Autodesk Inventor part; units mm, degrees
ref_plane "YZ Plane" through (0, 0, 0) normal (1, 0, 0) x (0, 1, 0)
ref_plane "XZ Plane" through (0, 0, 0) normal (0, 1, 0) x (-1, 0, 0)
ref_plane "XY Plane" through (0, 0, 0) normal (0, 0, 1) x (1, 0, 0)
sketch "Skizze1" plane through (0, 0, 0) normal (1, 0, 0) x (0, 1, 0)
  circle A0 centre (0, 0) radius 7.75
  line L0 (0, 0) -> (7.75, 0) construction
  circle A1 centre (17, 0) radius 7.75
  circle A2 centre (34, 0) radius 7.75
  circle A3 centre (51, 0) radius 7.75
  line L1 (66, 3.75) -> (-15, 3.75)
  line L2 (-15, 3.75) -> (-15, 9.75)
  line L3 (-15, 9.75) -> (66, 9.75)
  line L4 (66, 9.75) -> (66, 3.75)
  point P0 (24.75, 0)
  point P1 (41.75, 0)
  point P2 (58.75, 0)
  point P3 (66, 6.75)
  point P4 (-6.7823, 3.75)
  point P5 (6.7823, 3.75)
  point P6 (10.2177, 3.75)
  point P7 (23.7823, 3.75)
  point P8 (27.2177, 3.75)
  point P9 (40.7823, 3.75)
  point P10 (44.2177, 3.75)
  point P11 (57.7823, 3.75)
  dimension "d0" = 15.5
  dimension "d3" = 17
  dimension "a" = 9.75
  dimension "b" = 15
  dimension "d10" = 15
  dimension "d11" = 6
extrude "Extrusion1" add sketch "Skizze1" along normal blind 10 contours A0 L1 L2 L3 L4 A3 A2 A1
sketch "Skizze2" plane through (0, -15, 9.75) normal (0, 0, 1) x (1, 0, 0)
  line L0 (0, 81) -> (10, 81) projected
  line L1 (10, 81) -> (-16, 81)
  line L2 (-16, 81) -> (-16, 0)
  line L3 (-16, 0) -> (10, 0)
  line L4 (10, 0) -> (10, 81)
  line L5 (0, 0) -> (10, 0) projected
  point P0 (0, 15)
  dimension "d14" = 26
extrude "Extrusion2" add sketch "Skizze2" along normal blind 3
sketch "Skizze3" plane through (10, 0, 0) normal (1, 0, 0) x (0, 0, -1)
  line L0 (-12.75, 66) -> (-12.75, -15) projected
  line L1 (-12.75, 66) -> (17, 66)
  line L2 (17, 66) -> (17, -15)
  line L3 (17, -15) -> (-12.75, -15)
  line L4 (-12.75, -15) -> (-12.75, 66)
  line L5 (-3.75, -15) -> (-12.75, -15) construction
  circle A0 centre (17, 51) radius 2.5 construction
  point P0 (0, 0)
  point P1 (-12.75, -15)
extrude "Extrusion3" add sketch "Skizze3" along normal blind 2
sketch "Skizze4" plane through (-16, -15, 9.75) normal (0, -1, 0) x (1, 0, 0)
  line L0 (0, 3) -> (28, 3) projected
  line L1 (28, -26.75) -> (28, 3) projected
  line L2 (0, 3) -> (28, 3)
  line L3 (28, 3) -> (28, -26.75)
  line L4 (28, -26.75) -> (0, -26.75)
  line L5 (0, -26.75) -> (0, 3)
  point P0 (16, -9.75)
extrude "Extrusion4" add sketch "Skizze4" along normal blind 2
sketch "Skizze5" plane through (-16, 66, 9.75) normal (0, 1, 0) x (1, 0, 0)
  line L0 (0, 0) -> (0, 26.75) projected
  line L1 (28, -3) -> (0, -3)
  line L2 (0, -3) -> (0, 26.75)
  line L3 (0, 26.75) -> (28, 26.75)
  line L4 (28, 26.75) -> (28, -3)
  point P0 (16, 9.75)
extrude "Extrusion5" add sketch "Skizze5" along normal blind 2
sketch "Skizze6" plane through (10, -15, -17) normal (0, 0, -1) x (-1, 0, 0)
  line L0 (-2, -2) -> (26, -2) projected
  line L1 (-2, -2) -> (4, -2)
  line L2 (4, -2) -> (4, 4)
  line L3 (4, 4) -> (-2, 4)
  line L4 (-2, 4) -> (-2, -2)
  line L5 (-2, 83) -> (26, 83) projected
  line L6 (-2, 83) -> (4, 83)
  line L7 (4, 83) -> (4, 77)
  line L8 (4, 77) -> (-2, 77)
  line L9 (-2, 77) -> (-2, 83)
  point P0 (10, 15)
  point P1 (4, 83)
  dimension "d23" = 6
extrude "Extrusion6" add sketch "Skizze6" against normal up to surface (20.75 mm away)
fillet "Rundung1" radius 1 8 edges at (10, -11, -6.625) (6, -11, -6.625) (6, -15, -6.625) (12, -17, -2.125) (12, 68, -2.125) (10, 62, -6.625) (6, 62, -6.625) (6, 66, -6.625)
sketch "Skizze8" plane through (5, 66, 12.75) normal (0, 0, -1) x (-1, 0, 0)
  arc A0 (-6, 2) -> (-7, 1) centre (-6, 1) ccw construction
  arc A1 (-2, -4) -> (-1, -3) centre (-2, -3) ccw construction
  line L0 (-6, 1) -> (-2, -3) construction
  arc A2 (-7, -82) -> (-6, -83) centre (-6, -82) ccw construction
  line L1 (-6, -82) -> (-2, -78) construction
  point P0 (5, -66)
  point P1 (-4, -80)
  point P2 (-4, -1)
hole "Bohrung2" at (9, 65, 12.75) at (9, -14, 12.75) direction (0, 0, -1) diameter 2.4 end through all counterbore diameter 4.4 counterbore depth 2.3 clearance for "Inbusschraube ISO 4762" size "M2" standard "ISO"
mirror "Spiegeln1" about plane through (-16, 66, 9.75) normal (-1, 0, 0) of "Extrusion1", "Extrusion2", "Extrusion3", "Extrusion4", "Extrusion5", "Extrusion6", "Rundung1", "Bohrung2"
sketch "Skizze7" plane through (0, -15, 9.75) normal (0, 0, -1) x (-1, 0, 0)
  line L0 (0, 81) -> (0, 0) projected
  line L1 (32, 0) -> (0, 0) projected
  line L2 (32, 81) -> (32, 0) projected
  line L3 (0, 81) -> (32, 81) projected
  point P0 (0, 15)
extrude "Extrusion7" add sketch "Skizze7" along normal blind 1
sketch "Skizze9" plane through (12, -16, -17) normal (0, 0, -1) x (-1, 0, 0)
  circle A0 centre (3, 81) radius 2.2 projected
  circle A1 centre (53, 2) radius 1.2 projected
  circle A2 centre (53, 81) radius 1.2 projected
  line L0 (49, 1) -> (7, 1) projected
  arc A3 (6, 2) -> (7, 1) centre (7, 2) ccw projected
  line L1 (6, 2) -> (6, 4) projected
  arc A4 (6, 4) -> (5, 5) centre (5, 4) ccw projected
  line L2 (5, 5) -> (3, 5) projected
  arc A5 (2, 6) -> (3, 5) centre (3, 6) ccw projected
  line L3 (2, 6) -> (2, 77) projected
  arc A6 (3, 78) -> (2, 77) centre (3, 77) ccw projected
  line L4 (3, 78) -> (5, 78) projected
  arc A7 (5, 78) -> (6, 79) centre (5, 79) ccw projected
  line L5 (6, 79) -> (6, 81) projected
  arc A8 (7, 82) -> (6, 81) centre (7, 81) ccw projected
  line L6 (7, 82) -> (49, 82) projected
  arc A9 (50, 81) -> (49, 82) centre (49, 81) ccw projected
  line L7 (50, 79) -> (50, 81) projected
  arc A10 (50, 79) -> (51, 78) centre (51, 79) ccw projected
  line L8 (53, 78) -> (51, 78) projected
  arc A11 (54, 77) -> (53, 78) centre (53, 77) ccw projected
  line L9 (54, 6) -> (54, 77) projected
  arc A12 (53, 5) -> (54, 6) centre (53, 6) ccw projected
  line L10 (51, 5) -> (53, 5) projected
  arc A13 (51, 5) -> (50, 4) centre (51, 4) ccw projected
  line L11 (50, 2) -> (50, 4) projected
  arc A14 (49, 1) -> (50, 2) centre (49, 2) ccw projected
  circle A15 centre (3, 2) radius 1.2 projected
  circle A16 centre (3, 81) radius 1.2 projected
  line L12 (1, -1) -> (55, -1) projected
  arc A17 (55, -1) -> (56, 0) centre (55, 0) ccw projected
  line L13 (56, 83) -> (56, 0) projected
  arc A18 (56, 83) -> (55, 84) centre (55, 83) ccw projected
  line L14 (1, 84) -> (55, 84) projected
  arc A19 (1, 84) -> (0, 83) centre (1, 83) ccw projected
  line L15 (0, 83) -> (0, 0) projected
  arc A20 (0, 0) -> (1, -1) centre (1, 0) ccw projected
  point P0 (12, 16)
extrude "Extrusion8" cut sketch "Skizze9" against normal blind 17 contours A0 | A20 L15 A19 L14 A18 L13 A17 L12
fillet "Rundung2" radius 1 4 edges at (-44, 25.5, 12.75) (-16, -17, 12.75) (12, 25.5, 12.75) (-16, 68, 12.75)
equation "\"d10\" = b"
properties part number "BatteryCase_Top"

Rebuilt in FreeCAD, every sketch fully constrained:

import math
import FreeCAD as App
import Part
import Sketcher
from FreeCAD import Vector
Q = App.Units.Quantity


def edges_at(feature, points):
    """Names of the edges that pass closest to the given points."""
    edges = feature.Shape.Edges
    near = lambda p: min(range(len(edges)), key=lambda i: edges[i].distToShape(Part.Vertex(*p))[0])
    return sorted({f"Edge{near(p) + 1}" for p in points})

doc = App.newDocument("Part")
body = doc.addObject("PartDesign::Body", "Body")

# Sketch on YZ plane
sketch1 = doc.addObject("Sketcher::SketchObject", "Sketch")
body.addObject(sketch1)
sketch1.AttachmentSupport = (doc.YZ_Plane, [""])
sketch1.MapMode = "FlatFace"
sketch1.addGeometry(Part.ArcOfCircle(Part.Circle(Vector(0, 0, 0), Vector(0, 0, 1), 7.8), math.radians(29), math.radians(151)), False)
sketch1.addGeometry(Part.LineSegment(Vector(6.8, 3.8, 0), Vector(10.2, 3.8, 0)), False)
sketch1.addGeometry(Part.ArcOfCircle(Part.Circle(Vector(17, 0, 0), Vector(0, 0, 1), 7.8), math.radians(29), math.radians(151)), False)
sketch1.addGeometry(Part.LineSegment(Vector(23.8, 3.8, 0), Vector(27.2, 3.8, 0)), False)
sketch1.addGeometry(Part.ArcOfCircle(Part.Circle(Vector(34, 0, 0), Vector(0, 0, 1), 7.8), math.radians(29), math.radians(151)), False)
sketch1.addGeometry(Part.LineSegment(Vector(40.8, 3.8, 0), Vector(44.2, 3.8, 0)), False)
sketch1.addGeometry(Part.ArcOfCircle(Part.Circle(Vector(51, 0, 0), Vector(0, 0, 1), 7.8), math.radians(29), math.radians(151)), False)
sketch1.addGeometry(Part.LineSegment(Vector(57.8, 3.8, 0), Vector(66, 3.8, 0)), False)
sketch1.addGeometry(Part.LineSegment(Vector(66, 3.8, 0), Vector(66, 9.8, 0)), False)
sketch1.addGeometry(Part.LineSegment(Vector(66, 9.8, 0), Vector(-15, 9.8, 0)), False)
sketch1.addGeometry(Part.LineSegment(Vector(-15, 9.8, 0), Vector(-15, 3.8, 0)), False)
sketch1.addGeometry(Part.LineSegment(Vector(-15, 3.8, 0), Vector(-6.8, 3.8, 0)), False)
sketch1.addConstraint(Sketcher.Constraint("Coincident", 0, 1, 1, 1))
sketch1.addConstraint(Sketcher.Constraint("Coincident", 1, 2, 2, 2))
sketch1.addConstraint(Sketcher.Constraint("Coincident", 2, 1, 3, 1))
sketch1.addConstraint(Sketcher.Constraint("Coincident", 3, 2, 4, 2))
sketch1.addConstraint(Sketcher.Constraint("Coincident", 4, 1, 5, 1))
sketch1.addConstraint(Sketcher.Constraint("Coincident", 5, 2, 6, 2))
sketch1.addConstraint(Sketcher.Constraint("Coincident", 6, 1, 7, 1))
sketch1.addConstraint(Sketcher.Constraint("Coincident", 7, 2, 8, 1))
sketch1.addConstraint(Sketcher.Constraint("Coincident", 8, 2, 9, 1))
sketch1.addConstraint(Sketcher.Constraint("Coincident", 9, 2, 10, 1))
sketch1.addConstraint(Sketcher.Constraint("Coincident", 10, 2, 11, 1))
sketch1.addConstraint(Sketcher.Constraint("Coincident", 11, 2, 0, 2))
sketch1.addConstraint(Sketcher.Constraint("Horizontal", 1))
sketch1.addConstraint(Sketcher.Constraint("Horizontal", 3))
sketch1.addConstraint(Sketcher.Constraint("Horizontal", 5))
sketch1.addConstraint(Sketcher.Constraint("Horizontal", 7))
sketch1.addConstraint(Sketcher.Constraint("Vertical", 8))
sketch1.addConstraint(Sketcher.Constraint("Horizontal", 9))
sketch1.addConstraint(Sketcher.Constraint("Vertical", 10))
sketch1.addConstraint(Sketcher.Constraint("Horizontal", 11))
sketch1.addConstraint(Sketcher.Constraint("Coincident", 0, 3, -1, 1))
sketch1.addConstraint(Sketcher.Constraint("Equal", 0, 2))
sketch1.addConstraint(Sketcher.Constraint("Equal", 2, 4))
sketch1.addConstraint(Sketcher.Constraint("Equal", 4, 6))
sketch1.addConstraint(Sketcher.Constraint("PointOnObject", 2, 3, -1))
sketch1.addConstraint(Sketcher.Constraint("PointOnObject", 4, 3, -1))
sketch1.addConstraint(Sketcher.Constraint("PointOnObject", 6, 3, -1))
sketch1.addConstraint(Sketcher.Constraint("Horizontal", 1, 2, 2, 1))
sketch1.addConstraint(Sketcher.Constraint("Horizontal", 3, 2, 4, 1))
sketch1.addConstraint(Sketcher.Constraint("Horizontal", 5, 2, 6, 1))
sketch1.addConstraint(Sketcher.Constraint("Horizontal", 7, 2, 10, 2))
sketch1.addConstraint(Sketcher.Constraint("Equal", 1, 3))
sketch1.addConstraint(Sketcher.Constraint("Equal", 3, 5))
sketch1.addConstraint(Sketcher.Constraint("Equal", 7, 11))
sketch1.addConstraint(Sketcher.Constraint("DistanceY", 8, 1, 8, 2, Q("6 mm")))
sketch1.addConstraint(Sketcher.Constraint("Radius", 0, Q("7.75 mm")))
sketch1.addConstraint(Sketcher.Constraint("DistanceX", -1, 1, 2, 3, Q("17 mm")))
sketch1.addConstraint(Sketcher.Constraint("DistanceX", 9, 2, -1, 1, Q("15 mm")))
sketch1.addConstraint(Sketcher.Constraint("DistanceY", -1, 1, 8, 2, Q("9.75 mm")))
pad1 = doc.addObject("PartDesign::Pad", "Pad")
body.addObject(pad1)
pad1.Profile = sketch1
pad1.Length = 10

# Sketch on XY plane
sketch2 = doc.addObject("Sketcher::SketchObject", "Sketch001")
body.addObject(sketch2)
sketch2.AttachmentSupport = (doc.XY_Plane, [""])
sketch2.MapMode = "FlatFace"
sketch2.AttachmentOffset = App.Placement(Vector(0, 0, 9.75), App.Rotation())
sketch2.addGeometry(Part.LineSegment(Vector(10, 66, 0), Vector(-16, 66, 0)), False)
sketch2.addGeometry(Part.LineSegment(Vector(-16, 66, 0), Vector(-16, -15, 0)), False)
sketch2.addGeometry(Part.LineSegment(Vector(-16, -15, 0), Vector(10, -15, 0)), False)
sketch2.addGeometry(Part.LineSegment(Vector(10, -15, 0), Vector(10, 66, 0)), False)
sketch2.addConstraint(Sketcher.Constraint("Coincident", 0, 2, 1, 1))
sketch2.addConstraint(Sketcher.Constraint("Coincident", 1, 2, 2, 1))
sketch2.addConstraint(Sketcher.Constraint("Coincident", 2, 2, 3, 1))
sketch2.addConstraint(Sketcher.Constraint("Coincident", 3, 2, 0, 1))
sketch2.addConstraint(Sketcher.Constraint("Horizontal", 0))
sketch2.addConstraint(Sketcher.Constraint("Vertical", 1))
sketch2.addConstraint(Sketcher.Constraint("Horizontal", 2))
sketch2.addConstraint(Sketcher.Constraint("Vertical", 3))
sketch2.addConstraint(Sketcher.Constraint("DistanceX", 0, 2, 0, 1, Q("26 mm")))
sketch2.addConstraint(Sketcher.Constraint("DistanceY", 1, 2, 1, 1, Q("81 mm")))
sketch2.addConstraint(Sketcher.Constraint("DistanceX", 0, 2, -1, 1, Q("16 mm")))
sketch2.addConstraint(Sketcher.Constraint("DistanceY", -1, 1, 0, 2, Q("66 mm")))
pad2 = doc.addObject("PartDesign::Pad", "Pad001")
body.addObject(pad2)
pad2.Profile = sketch2
pad2.Length = 3

# Sketch on YZ plane
sketch3 = doc.addObject("Sketcher::SketchObject", "Sketch002")
body.addObject(sketch3)
sketch3.AttachmentSupport = (doc.YZ_Plane, [""])
sketch3.MapMode = "FlatFace"
sketch3.AttachmentOffset = App.Placement(Vector(0, 0, 10), App.Rotation())
sketch3.addGeometry(Part.LineSegment(Vector(66, -17, 0), Vector(66, 13, 0)), False)
sketch3.addGeometry(Part.LineSegment(Vector(66, 13, 0), Vector(-15, 13, 0)), False)
sketch3.addGeometry(Part.LineSegment(Vector(-15, 13, 0), Vector(-15, -17, 0)), False)
sketch3.addGeometry(Part.LineSegment(Vector(-15, -17, 0), Vector(66, -17, 0)), False)
sketch3.addConstraint(Sketcher.Constraint("Coincident", 0, 2, 1, 1))
sketch3.addConstraint(Sketcher.Constraint("Coincident", 1, 2, 2, 1))
sketch3.addConstraint(Sketcher.Constraint("Coincident", 2, 2, 3, 1))
sketch3.addConstraint(Sketcher.Constraint("Coincident", 3, 2, 0, 1))
sketch3.addConstraint(Sketcher.Constraint("Vertical", 0))
sketch3.addConstraint(Sketcher.Constraint("Horizontal", 1))
sketch3.addConstraint(Sketcher.Constraint("Vertical", 2))
sketch3.addConstraint(Sketcher.Constraint("Horizontal", 3))
sketch3.addConstraint(Sketcher.Constraint("DistanceX", 1, 2, 1, 1, Q("81 mm")))
sketch3.addConstraint(Sketcher.Constraint("DistanceX", -1, 1, 0, 2, Q("66 mm")))
sketch3.addConstraint(Sketcher.Constraint("DistanceY", 2, 2, -1, 1, Q("17 mm")))
sketch3.addConstraint(Sketcher.Constraint("DistanceY", 0, 1, 0, 2, Q("29.75 mm")))
pad3 = doc.addObject("PartDesign::Pad", "Pad002")
body.addObject(pad3)
pad3.Profile = sketch3
pad3.Length = 2

# Sketch on XZ plane
sketch4 = doc.addObject("Sketcher::SketchObject", "Sketch003")
body.addObject(sketch4)
sketch4.AttachmentSupport = (doc.XZ_Plane, [""])
sketch4.MapMode = "FlatFace"
sketch4.AttachmentOffset = App.Placement(Vector(0, 0, 15), App.Rotation())
sketch4.addGeometry(Part.LineSegment(Vector(12, 13, 0), Vector(-16, 13, 0)), False)
sketch4.addGeometry(Part.LineSegment(Vector(-16, 13, 0), Vector(-16, -17, 0)), False)
sketch4.addGeometry(Part.LineSegment(Vector(-16, -17, 0), Vector(12, -17, 0)), False)
sketch4.addGeometry(Part.LineSegment(Vector(12, -17, 0), Vector(12, 13, 0)), False)
sketch4.addConstraint(Sketcher.Constraint("Coincident", 0, 2, 1, 1))
sketch4.addConstraint(Sketcher.Constraint("Coincident", 1, 2, 2, 1))
sketch4.addConstraint(Sketcher.Constraint("Coincident", 2, 2, 3, 1))
sketch4.addConstraint(Sketcher.Constraint("Coincident", 3, 2, 0, 1))
sketch4.addConstraint(Sketcher.Constraint("Horizontal", 0))
sketch4.addConstraint(Sketcher.Constraint("Vertical", 1))
sketch4.addConstraint(Sketcher.Constraint("Horizontal", 2))
sketch4.addConstraint(Sketcher.Constraint("Vertical", 3))
sketch4.addConstraint(Sketcher.Constraint("DistanceX", 0, 2, 0, 1, Q("28 mm")))
sketch4.addConstraint(Sketcher.Constraint("DistanceX", 0, 2, -1, 1, Q("16 mm")))
sketch4.addConstraint(Sketcher.Constraint("DistanceY", 1, 2, -1, 1, Q("17 mm")))
sketch4.addConstraint(Sketcher.Constraint("DistanceY", 1, 2, 1, 1, Q("29.75 mm")))
pad4 = doc.addObject("PartDesign::Pad", "Pad003")
body.addObject(pad4)
pad4.Profile = sketch4
pad4.Length = 2

# Sketch on XZ plane
sketch5 = doc.addObject("Sketcher::SketchObject", "Sketch004")
body.addObject(sketch5)
sketch5.AttachmentSupport = (doc.XZ_Plane, [""])
sketch5.MapMode = "FlatFace"
sketch5.AttachmentOffset = App.Placement(Vector(0, 0, -66), App.Rotation())
sketch5.addGeometry(Part.LineSegment(Vector(-16, -17, 0), Vector(-16, 13, 0)), False)
sketch5.addGeometry(Part.LineSegment(Vector(-16, 13, 0), Vector(12, 13, 0)), False)
sketch5.addGeometry(Part.LineSegment(Vector(12, 13, 0), Vector(12, -17, 0)), False)
sketch5.addGeometry(Part.LineSegment(Vector(12, -17, 0), Vector(-16, -17, 0)), False)
sketch5.addConstraint(Sketcher.Constraint("Coincident", 0, 2, 1, 1))
sketch5.addConstraint(Sketcher.Constraint("Coincident", 1, 2, 2, 1))
sketch5.addConstraint(Sketcher.Constraint("Coincident", 2, 2, 3, 1))
sketch5.addConstraint(Sketcher.Constraint("Coincident", 3, 2, 0, 1))
sketch5.addConstraint(Sketcher.Constraint("Vertical", 0))
sketch5.addConstraint(Sketcher.Constraint("Horizontal", 1))
sketch5.addConstraint(Sketcher.Constraint("Vertical", 2))
sketch5.addConstraint(Sketcher.Constraint("Horizontal", 3))
sketch5.addConstraint(Sketcher.Constraint("DistanceX", 1, 1, 1, 2, Q("28 mm")))
sketch5.addConstraint(Sketcher.Constraint("DistanceX", 0, 2, -1, 1, Q("16 mm")))
sketch5.addConstraint(Sketcher.Constraint("DistanceY", 2, 2, -1, 1, Q("17 mm")))
sketch5.addConstraint(Sketcher.Constraint("DistanceY", 0, 1, 0, 2, Q("29.75 mm")))
pad5 = doc.addObject("PartDesign::Pad", "Pad004")
body.addObject(pad5)
pad5.Profile = sketch5
pad5.Length = 2
pad5.Reversed = True

# Sketch on XY plane
sketch6 = doc.addObject("Sketcher::SketchObject", "Sketch005")
body.addObject(sketch6)
sketch6.AttachmentSupport = (doc.XY_Plane, [""])
sketch6.MapMode = "FlatFace"
sketch6.AttachmentOffset = App.Placement(Vector(0, 0, -17), App.Rotation())
sketch6.addGeometry(Part.LineSegment(Vector(12, -11, 0), Vector(12, -17, 0)), False)
sketch6.addGeometry(Part.LineSegment(Vector(12, -17, 0), Vector(6, -17, 0)), False)
sketch6.addGeometry(Part.LineSegment(Vector(6, -17, 0), Vector(6, -11, 0)), False)
sketch6.addGeometry(Part.LineSegment(Vector(6, -11, 0), Vector(12, -11, 0)), False)
sketch6.addGeometry(Part.LineSegment(Vector(6, 68, 0), Vector(12, 68, 0)), False)
sketch6.addGeometry(Part.LineSegment(Vector(12, 68, 0), Vector(12, 62, 0)), False)
sketch6.addGeometry(Part.LineSegment(Vector(12, 62, 0), Vector(6, 62, 0)), False)
sketch6.addGeometry(Part.LineSegment(Vector(6, 62, 0), Vector(6, 68, 0)), False)
sketch6.addConstraint(Sketcher.Constraint("Coincident", 0, 2, 1, 1))
sketch6.addConstraint(Sketcher.Constraint("Coincident", 1, 2, 2, 1))
sketch6.addConstraint(Sketcher.Constraint("Coincident", 2, 2, 3, 1))
sketch6.addConstraint(Sketcher.Constraint("Coincident", 3, 2, 0, 1))
sketch6.addConstraint(Sketcher.Constraint("Coincident", 4, 2, 5, 1))
sketch6.addConstraint(Sketcher.Constraint("Coincident", 5, 2, 6, 1))
sketch6.addConstraint(Sketcher.Constraint("Coincident", 6, 2, 7, 1))
sketch6.addConstraint(Sketcher.Constraint("Coincident", 7, 2, 4, 1))
sketch6.addConstraint(Sketcher.Constraint("Vertical", 0))
sketch6.addConstraint(Sketcher.Constraint("Horizontal", 1))
sketch6.addConstraint(Sketcher.Constraint("Vertical", 2))
sketch6.addConstraint(Sketcher.Constraint("Horizontal", 3))
sketch6.addConstraint(Sketcher.Constraint("Horizontal", 4))
sketch6.addConstraint(Sketcher.Constraint("Vertical", 5))
sketch6.addConstraint(Sketcher.Constraint("Horizontal", 6))
sketch6.addConstraint(Sketcher.Constraint("Vertical", 7))
sketch6.addConstraint(Sketcher.Constraint("Vertical", 3, 2, 4, 2))
sketch6.addConstraint(Sketcher.Constraint("Vertical", 2, 2, 6, 2))
sketch6.addConstraint(Sketcher.Constraint("Equal", 6, 0))
sketch6.addConstraint(Sketcher.Constraint("Equal", 2, 5))
sketch6.addConstraint(Sketcher.Constraint("DistanceX", 1, 2, 1, 1, Q("6 mm")))
sketch6.addConstraint(Sketcher.Constraint("DistanceX", -1, 1, 1, 2, Q("6 mm")))
sketch6.addConstraint(Sketcher.Constraint("DistanceY", 0, 2, -1, 1, Q("17 mm")))
sketch6.addConstraint(Sketcher.Constraint("DistanceY", -1, 1, 4, 2, Q("68 mm")))
pad6 = doc.addObject("PartDesign::Pad", "Pad005")
body.addObject(pad6)
pad6.Profile = sketch6
pad6.Length = 20.75
doc.recompute()

fillet = doc.addObject("PartDesign::Fillet", "Fillet")
body.addObject(fillet)
fillet.Base = (pad6, edges_at(pad6, [
    (10, -11, -6.625),
    (6, -11, -6.625),
    (6, -15, -6.625),
    (12, -17, -2.125),
    (12, 68, -2.125),
    (10, 62, -6.625),
    (6, 62, -6.625),
    (6, 66, -6.625),
]))
fillet.Radius = 1

# Sketch on XY plane
sketch7 = doc.addObject("Sketcher::SketchObject", "Sketch006")
body.addObject(sketch7)
sketch7.AttachmentSupport = (doc.XY_Plane, [""])
sketch7.MapMode = "FlatFace"
sketch7.AttachmentOffset = App.Placement(Vector(0, 0, 12.75), App.Rotation())
sketch7.addGeometry(Part.Circle(Vector(9, 65, 0), Vector(0, 0, 1), 1.2), False)
sketch7.addGeometry(Part.Circle(Vector(9, -14, 0), Vector(0, 0, 1), 1.2), False)
sketch7.addConstraint(Sketcher.Constraint("Equal", 0, 1))
sketch7.addConstraint(Sketcher.Constraint("Vertical", 0, 3, 1, 3))
sketch7.addConstraint(Sketcher.Constraint("Diameter", 0, Q("2.4 mm")))
sketch7.addConstraint(Sketcher.Constraint("DistanceX", -1, 1, 0, 3, Q("9 mm")))
sketch7.addConstraint(Sketcher.Constraint("DistanceY", -1, 1, 0, 3, Q("65 mm")))
sketch7.addConstraint(Sketcher.Constraint("DistanceY", 1, 3, -1, 1, Q("14 mm")))
doc.recompute()
hole = doc.addObject("PartDesign::Hole", "Hole")
body.addObject(hole)
hole.Profile = sketch7
hole.ThreadType = "None"
hole.Diameter = 2.4
hole.DepthType = "ThroughAll"
hole.HoleCutType = "Counterbore"
hole.HoleCutDiameter = 4.4
hole.HoleCutDepth = 2.3
doc.recompute()

datumplane = doc.addObject("PartDesign::Plane", "DatumPlane")
body.addObject(datumplane)
datumplane.AttachmentSupport = (doc.YZ_Plane, [""])
datumplane.MapMode = "FlatFace"
datumplane.AttachmentOffset = App.Placement(Vector(0, 0, -16), App.Rotation())
mirrored = doc.addObject("PartDesign::Mirrored", "Mirrored")
body.addObject(mirrored)
mirrored.Originals = [pad1, pad2, pad3, pad4, pad5, pad6, fillet, hole]
mirrored.MirrorPlane = (datumplane, [""])
body.Tip = mirrored

# Sketch on XY plane
sketch8 = doc.addObject("Sketcher::SketchObject", "Sketch007")
body.addObject(sketch8)
sketch8.AttachmentSupport = (doc.XY_Plane, [""])
sketch8.MapMode = "FlatFace"
sketch8.AttachmentOffset = App.Placement(Vector(0, 0, 9.75), App.Rotation())
sketch8.addGeometry(Part.LineSegment(Vector(-32, 66, 0), Vector(0, 66, 0)), False)
sketch8.addGeometry(Part.LineSegment(Vector(0, 66, 0), Vector(0, -15, 0)), False)
sketch8.addGeometry(Part.LineSegment(Vector(0, -15, 0), Vector(-32, -15, 0)), False)
sketch8.addGeometry(Part.LineSegment(Vector(-32, -15, 0), Vector(-32, 66, 0)), False)
sketch8.addConstraint(Sketcher.Constraint("Coincident", 0, 2, 1, 1))
sketch8.addConstraint(Sketcher.Constraint("Coincident", 1, 2, 2, 1))
sketch8.addConstraint(Sketcher.Constraint("Coincident", 2, 2, 3, 1))
sketch8.addConstraint(Sketcher.Constraint("Coincident", 3, 2, 0, 1))
sketch8.addConstraint(Sketcher.Constraint("Horizontal", 0))
sketch8.addConstraint(Sketcher.Constraint("Vertical", 1))
sketch8.addConstraint(Sketcher.Constraint("Horizontal", 2))
sketch8.addConstraint(Sketcher.Constraint("Vertical", 3))
sketch8.addConstraint(Sketcher.Constraint("PointOnObject", 0, 2, -2))
sketch8.addConstraint(Sketcher.Constraint("DistanceX", 0, 1, 0, 2, Q("32 mm")))
sketch8.addConstraint(Sketcher.Constraint("DistanceY", 1, 2, 1, 1, Q("81 mm")))
sketch8.addConstraint(Sketcher.Constraint("DistanceY", -1, 1, 0, 2, Q("66 mm")))
pad7 = doc.addObject("PartDesign::Pad", "Pad006")
body.addObject(pad7)
pad7.Profile = sketch8
pad7.Length = 1
pad7.Reversed = True

# Sketch on XY plane
sketch9 = doc.addObject("Sketcher::SketchObject", "Sketch008")
body.addObject(sketch9)
sketch9.AttachmentSupport = (doc.XY_Plane, [""])
sketch9.MapMode = "FlatFace"
sketch9.AttachmentOffset = App.Placement(Vector(0, 0, -17), App.Rotation())
sketch9.addGeometry(Part.ArcOfCircle(Part.Circle(Vector(11, -16, 0), Vector(0, 0, 1), 1), math.radians(-90), math.radians(0)), False)
sketch9.addGeometry(Part.LineSegment(Vector(11, -17, 0), Vector(-43, -17, 0)), False)
sketch9.addGeometry(Part.ArcOfCircle(Part.Circle(Vector(-43, -16, 0), Vector(0, 0, 1), 1), math.radians(180), math.radians(270)), False)
sketch9.addGeometry(Part.LineSegment(Vector(-44, -16, 0), Vector(-44, 67, 0)), False)
sketch9.addGeometry(Part.ArcOfCircle(Part.Circle(Vector(-43, 67, 0), Vector(0, 0, 1), 1), math.radians(90), math.radians(180)), False)
sketch9.addGeometry(Part.LineSegment(Vector(-43, 68, 0), Vector(11, 68, 0)), False)
sketch9.addGeometry(Part.ArcOfCircle(Part.Circle(Vector(11, 67, 0), Vector(0, 0, 1), 1), math.radians(0), math.radians(90)), False)
sketch9.addGeometry(Part.LineSegment(Vector(12, 67, 0), Vector(12, -16, 0)), False)
sketch9.addGeometry(Part.Circle(Vector(9, 65, 0), Vector(0, 0, 1), 1.2), False)
sketch9.addGeometry(Part.Circle(Vector(9, -14, 0), Vector(0, 0, 1), 1.2), False)
sketch9.addGeometry(Part.Circle(Vector(-41, -14, 0), Vector(0, 0, 1), 1.2), False)
sketch9.addGeometry(Part.Circle(Vector(-41, 65, 0), Vector(0, 0, 1), 1.2), False)
sketch9.addGeometry(Part.ArcOfCircle(Part.Circle(Vector(-37, -14, 0), Vector(0, 0, 1), 1), math.radians(180), math.radians(270)), False)
sketch9.addGeometry(Part.LineSegment(Vector(-37, -15, 0), Vector(5, -15, 0)), False)
sketch9.addGeometry(Part.ArcOfCircle(Part.Circle(Vector(5, -14, 0), Vector(0, 0, 1), 1), math.radians(-90), math.radians(0)), False)
sketch9.addGeometry(Part.LineSegment(Vector(6, -14, 0), Vector(6, -12, 0)), False)
sketch9.addGeometry(Part.ArcOfCircle(Part.Circle(Vector(7, -12, 0), Vector(0, 0, 1), 1), math.radians(90), math.radians(180)), False)
sketch9.addGeometry(Part.LineSegment(Vector(7, -11, 0), Vector(9, -11, 0)), False)
sketch9.addGeometry(Part.ArcOfCircle(Part.Circle(Vector(9, -10, 0), Vector(0, 0, 1), 1), math.radians(-90), math.radians(0)), False)
sketch9.addGeometry(Part.LineSegment(Vector(10, -10, 0), Vector(10, 61, 0)), False)
sketch9.addGeometry(Part.ArcOfCircle(Part.Circle(Vector(9, 61, 0), Vector(0, 0, 1), 1), math.radians(0), math.radians(90)), False)
sketch9.addGeometry(Part.LineSegment(Vector(9, 62, 0), Vector(7, 62, 0)), False)
sketch9.addGeometry(Part.ArcOfCircle(Part.Circle(Vector(7, 63, 0), Vector(0, 0, 1), 1), math.radians(180), math.radians(270)), False)
sketch9.addGeometry(Part.LineSegment(Vector(6, 63, 0), Vector(6, 65, 0)), False)
sketch9.addGeometry(Part.ArcOfCircle(Part.Circle(Vector(5, 65, 0), Vector(0, 0, 1), 1), math.radians(0), math.radians(90)), False)
sketch9.addGeometry(Part.LineSegment(Vector(5, 66, 0), Vector(-37, 66, 0)), False)
sketch9.addGeometry(Part.ArcOfCircle(Part.Circle(Vector(-37, 65, 0), Vector(0, 0, 1), 1), math.radians(90), math.radians(180)), False)
sketch9.addGeometry(Part.LineSegment(Vector(-38, 65, 0), Vector(-38, 63, 0)), False)
sketch9.addGeometry(Part.ArcOfCircle(Part.Circle(Vector(-39, 63, 0), Vector(0, 0, 1), 1), math.radians(-90), math.radians(0)), False)
sketch9.addGeometry(Part.LineSegment(Vector(-39, 62, 0), Vector(-41, 62, 0)), False)
sketch9.addGeometry(Part.ArcOfCircle(Part.Circle(Vector(-41, 61, 0), Vector(0, 0, 1), 1), math.radians(90), math.radians(180)), False)
sketch9.addGeometry(Part.LineSegment(Vector(-42, 61, 0), Vector(-42, -10, 0)), False)
sketch9.addGeometry(Part.ArcOfCircle(Part.Circle(Vector(-41, -10, 0), Vector(0, 0, 1), 1), math.radians(180), math.radians(270)), False)
sketch9.addGeometry(Part.LineSegment(Vector(-41, -11, 0), Vector(-39, -11, 0)), False)
sketch9.addGeometry(Part.ArcOfCircle(Part.Circle(Vector(-39, -12, 0), Vector(0, 0, 1), 1), math.radians(0), math.radians(90)), False)
sketch9.addGeometry(Part.LineSegment(Vector(-38, -12, 0), Vector(-38, -14, 0)), False)
sketch9.addConstraint(Sketcher.Constraint("Tangent", 0, 1, 1, 1))
sketch9.addConstraint(Sketcher.Constraint("Tangent", 1, 2, 2, 2))
sketch9.addConstraint(Sketcher.Constraint("Tangent", 2, 1, 3, 1))
sketch9.addConstraint(Sketcher.Constraint("Tangent", 3, 2, 4, 2))
sketch9.addConstraint(Sketcher.Constraint("Tangent", 4, 1, 5, 1))
sketch9.addConstraint(Sketcher.Constraint("Tangent", 5, 2, 6, 2))
sketch9.addConstraint(Sketcher.Constraint("Tangent", 6, 1, 7, 1))
sketch9.addConstraint(Sketcher.Constraint("Tangent", 7, 2, 0, 2))
sketch9.addConstraint(Sketcher.Constraint("Tangent", 12, 2, 13, 1))
sketch9.addConstraint(Sketcher.Constraint("Tangent", 13, 2, 14, 1))
sketch9.addConstraint(Sketcher.Constraint("Tangent", 14, 2, 15, 1))
sketch9.addConstraint(Sketcher.Constraint("Tangent", 15, 2, 16, 2))
sketch9.addConstraint(Sketcher.Constraint("Tangent", 16, 1, 17, 1))
sketch9.addConstraint(Sketcher.Constraint("Tangent", 17, 2, 18, 1))
sketch9.addConstraint(Sketcher.Constraint("Tangent", 18, 2, 19, 1))
sketch9.addConstraint(Sketcher.Constraint("Tangent", 19, 2, 20, 1))
sketch9.addConstraint(Sketcher.Constraint("Tangent", 20, 2, 21, 1))
sketch9.addConstraint(Sketcher.Constraint("Tangent", 21, 2, 22, 2))
sketch9.addConstraint(Sketcher.Constraint("Tangent", 22, 1, 23, 1))
sketch9.addConstraint(Sketcher.Constraint("Tangent", 23, 2, 24, 1))
sketch9.addConstraint(Sketcher.Constraint("Tangent", 24, 2, 25, 1))
sketch9.addConstraint(Sketcher.Constraint("Tangent", 25, 2, 26, 1))
sketch9.addConstraint(Sketcher.Constraint("Tangent", 26, 2, 27, 1))
sketch9.addConstraint(Sketcher.Constraint("Tangent", 27, 2, 28, 2))
sketch9.addConstraint(Sketcher.Constraint("Tangent", 28, 1, 29, 1))
sketch9.addConstraint(Sketcher.Constraint("Tangent", 29, 2, 30, 1))
sketch9.addConstraint(Sketcher.Constraint("Tangent", 30, 2, 31, 1))
sketch9.addConstraint(Sketcher.Constraint("Tangent", 31, 2, 32, 1))
sketch9.addConstraint(Sketcher.Constraint("Tangent", 32, 2, 33, 1))
sketch9.addConstraint(Sketcher.Constraint("Tangent", 33, 2, 34, 2))
sketch9.addConstraint(Sketcher.Constraint("Tangent", 34, 1, 35, 1))
sketch9.addConstraint(Sketcher.Constraint("Tangent", 35, 2, 12, 1))
sketch9.addConstraint(Sketcher.Constraint("Horizontal", 1))
sketch9.addConstraint(Sketcher.Constraint("Vertical", 3))
sketch9.addConstraint(Sketcher.Constraint("Horizontal", 5))
sketch9.addConstraint(Sketcher.Constraint("Vertical", 7))
sketch9.addConstraint(Sketcher.Constraint("Horizontal", 13))
sketch9.addConstraint(Sketcher.Constraint("Vertical", 15))
sketch9.addConstraint(Sketcher.Constraint("Horizontal", 17))
sketch9.addConstraint(Sketcher.Constraint("Vertical", 19))
sketch9.addConstraint(Sketcher.Constraint("Horizontal", 21))
sketch9.addConstraint(Sketcher.Constraint("Vertical", 23))
sketch9.addConstraint(Sketcher.Constraint("Horizontal", 25))
sketch9.addConstraint(Sketcher.Constraint("Vertical", 27))
sketch9.addConstraint(Sketcher.Constraint("Horizontal", 29))
sketch9.addConstraint(Sketcher.Constraint("Vertical", 31))
sketch9.addConstraint(Sketcher.Constraint("Horizontal", 33))
sketch9.addConstraint(Sketcher.Constraint("Vertical", 35))
sketch9.addConstraint(Sketcher.Constraint("Equal", 0, 2))
sketch9.addConstraint(Sketcher.Constraint("Equal", 2, 4))
sketch9.addConstraint(Sketcher.Constraint("Equal", 4, 6))
sketch9.addConstraint(Sketcher.Constraint("Equal", 8, 9))
sketch9.addConstraint(Sketcher.Constraint("Equal", 9, 10))
sketch9.addConstraint(Sketcher.Constraint("Equal", 10, 11))
sketch9.addConstraint(Sketcher.Constraint("Equal", 6, 12))
sketch9.addConstraint(Sketcher.Constraint("Equal", 12, 14))
sketch9.addConstraint(Sketcher.Constraint("Equal", 14, 16))
sketch9.addConstraint(Sketcher.Constraint("Equal", 16, 18))
sketch9.addConstraint(Sketcher.Constraint("Equal", 18, 20))
sketch9.addConstraint(Sketcher.Constraint("Equal", 20, 22))
sketch9.addConstraint(Sketcher.Constraint("Equal", 22, 24))
sketch9.addConstraint(Sketcher.Constraint("Equal", 24, 26))
sketch9.addConstraint(Sketcher.Constraint("Equal", 26, 28))
sketch9.addConstraint(Sketcher.Constraint("Equal", 28, 30))
sketch9.addConstraint(Sketcher.Constraint("Equal", 30, 32))
sketch9.addConstraint(Sketcher.Constraint("Equal", 32, 34))
sketch9.addConstraint(Sketcher.Constraint("Horizontal", 9, 3, 10, 3))
sketch9.addConstraint(Sketcher.Constraint("Horizontal", 8, 3, 11, 3))
sketch9.addConstraint(Sketcher.Constraint("Horizontal", 10, 3, 12, 3))
sketch9.addConstraint(Sketcher.Constraint("Horizontal", 11, 3, 24, 3))
sketch9.addConstraint(Sketcher.Constraint("Horizontal", 22, 3, 28, 3))
sketch9.addConstraint(Sketcher.Constraint("Horizontal", 18, 3, 32, 3))
sketch9.addConstraint(Sketcher.Constraint("Vertical", 8, 3, 9, 3))
sketch9.addConstraint(Sketcher.Constraint("Vertical", 10, 3, 11, 3))
sketch9.addConstraint(Sketcher.Constraint("Vertical", 9, 3, 18, 3))
sketch9.addConstraint(Sketcher.Constraint("Vertical", 16, 3, 22, 3))
sketch9.addConstraint(Sketcher.Constraint("Vertical", 12, 3, 26, 3))
sketch9.addConstraint(Sketcher.Constraint("Vertical", 11, 3, 30, 3))
sketch9.addConstraint(Sketcher.Constraint("Equal", 21, 29))
sketch9.addConstraint(Sketcher.Constraint("Equal", 33, 15))
sketch9.addConstraint(Sketcher.Constraint("Equal", 15, 23))
sketch9.addConstraint(Sketcher.Constraint("Radius", 0, Q("1 mm")))
sketch9.addConstraint(Sketcher.Constraint("Diameter", 8, Q("2.4 mm")))
sketch9.addConstraint(Sketcher.Constraint("DistanceX", 1, 2, 1, 1, Q("54 mm")))
sketch9.addConstraint(Sketcher.Constraint("DistanceX", 13, 1, 13, 2, Q("42 mm")))
sketch9.addConstraint(Sketcher.Constraint("DistanceX", 17, 1, 17, 2, Q("2 mm")))
sketch9.addConstraint(Sketcher.Constraint("DistanceY", 3, 1, 3, 2, Q("83 mm")))
sketch9.addConstraint(Sketcher.Constraint("DistanceY", 19, 1, 19, 2, Q("71 mm")))
sketch9.addConstraint(Sketcher.Constraint("DistanceX", -1, 1, 0, 3, Q("11 mm")))
sketch9.addConstraint(Sketcher.Constraint("DistanceY", 0, 3, -1, 1, Q("16 mm")))
sketch9.addConstraint(Sketcher.Constraint("DistanceX", -1, 1, 8, 3, Q("9 mm")))
sketch9.addConstraint(Sketcher.Constraint("DistanceY", -1, 1, 8, 3, Q("65 mm")))
pocket1 = doc.addObject("PartDesign::Pocket", "Pocket")
body.addObject(pocket1)
pocket1.Profile = sketch9
pocket1.Length = 17
pocket1.Reversed = True
doc.recompute()

fillet2 = doc.addObject("PartDesign::Fillet", "Fillet001")
body.addObject(fillet2)
fillet2.Base = (pocket1, edges_at(pocket1, [
    (-44, 25.5, 12.75),
    (-16, -17, 12.75),
    (12, 25.5, 12.75),
    (-16, 68, 12.75),
]))
fillet2.Radius = 1

doc.recompute()
